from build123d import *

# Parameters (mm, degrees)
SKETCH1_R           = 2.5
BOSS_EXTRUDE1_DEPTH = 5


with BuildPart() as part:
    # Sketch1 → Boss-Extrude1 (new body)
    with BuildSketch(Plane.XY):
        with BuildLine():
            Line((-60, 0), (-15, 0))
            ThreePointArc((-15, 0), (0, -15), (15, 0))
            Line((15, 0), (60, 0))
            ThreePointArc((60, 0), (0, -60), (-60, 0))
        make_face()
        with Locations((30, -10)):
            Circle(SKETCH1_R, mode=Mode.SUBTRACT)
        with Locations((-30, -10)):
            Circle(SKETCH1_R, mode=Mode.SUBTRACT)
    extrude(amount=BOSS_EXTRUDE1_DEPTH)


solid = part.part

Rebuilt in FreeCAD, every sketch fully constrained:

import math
import FreeCAD as App
import Part
import Sketcher

V = App.Vector

doc = App.newDocument("Part")
body = doc.addObject("PartDesign::Body", "Body")

sketch1 = body.newObject("Sketcher::SketchObject", "Sketch")
sketch1.AttachmentSupport = (doc.getObject("XY_Plane"), [""])
sketch1.MapMode = "FlatFace"
sketch1.addGeometry([
    Part.LineSegment(V(-15, 0, 0), V(-60, 0, 0)),
    Part.ArcOfCircle(Part.Circle(V(0, 0, 0), V(0, 0, 1), 60), math.radians(180), math.radians(360)),
    Part.LineSegment(V(60, 0, 0), V(15, 0, 0)),
    Part.ArcOfCircle(Part.Circle(V(0, 0, 0), V(0, 0, 1), 15), math.radians(180), math.radians(360)),
    Part.Circle(V(30, -10, 0), V(0, 0, 1), 2.5),
    Part.Circle(V(-30, -10, 0), V(0, 0, 1), 2.5),
], False)
sketch1.addConstraint([
    Sketcher.Constraint("Coincident", 0, 2, 1, 1),
    Sketcher.Constraint("Coincident", 1, 2, 2, 1),
    Sketcher.Constraint("Coincident", 2, 2, 3, 2),
    Sketcher.Constraint("Coincident", 3, 1, 0, 1),
    Sketcher.Constraint("Horizontal", 0),
    Sketcher.Constraint("Horizontal", 2),
    Sketcher.Constraint("Coincident", 1, 3, -1, 1),
    Sketcher.Constraint("Coincident", 3, 3, -1, 1),
    Sketcher.Constraint("Equal", 4, 5),
    Sketcher.Constraint("Symmetric", 4, 3, 5, 3, -2),
    Sketcher.Constraint("PointOnObject", 0, 2, -1),
    Sketcher.Constraint("PointOnObject", 1, 2, -1),
    Sketcher.Constraint("Diameter", 4, 5.0),
    Sketcher.Constraint("Radius", 1, 60.0),
    Sketcher.Constraint("Radius", 3, 15.0),
    Sketcher.Constraint("DistanceX", -1, 1, 4, 3, 30.0),
    Sketcher.Constraint("DistanceY", 4, 3, -1, 1, 10.0),
])
pad1 = body.newObject("PartDesign::Pad", "Pad")
pad1.Profile = sketch1
pad1.Length = 5

doc.recompute()
